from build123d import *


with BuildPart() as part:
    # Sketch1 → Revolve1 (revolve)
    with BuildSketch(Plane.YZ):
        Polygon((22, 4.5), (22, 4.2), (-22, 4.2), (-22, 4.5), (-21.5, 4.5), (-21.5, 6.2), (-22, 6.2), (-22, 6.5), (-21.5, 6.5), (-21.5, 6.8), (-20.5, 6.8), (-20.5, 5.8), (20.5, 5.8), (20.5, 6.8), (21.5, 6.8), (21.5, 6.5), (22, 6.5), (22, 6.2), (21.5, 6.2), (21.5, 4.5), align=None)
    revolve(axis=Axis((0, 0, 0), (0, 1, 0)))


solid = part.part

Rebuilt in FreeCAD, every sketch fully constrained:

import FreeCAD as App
import Part
import Sketcher

V = App.Vector


def add_polygon(sketch, points):
    """Adds a closed chain of lines whose ends are joined by coincident constraints."""
    first, n = sketch.GeometryCount, len(points)
    for a, b in zip(points, points[1:] + points[:1]):
        sketch.addGeometry(Part.LineSegment(App.Vector(*a, 0), App.Vector(*b, 0)), False)
    for i in range(n):
        sketch.addConstraint(Sketcher.Constraint("Coincident", first + i, 2, first + (i + 1) % n, 1))

doc = App.newDocument("Part")
body = doc.addObject("PartDesign::Body", "Body")

sketch1 = doc.addObject("Sketcher::SketchObject", "Sketch")
body.addObject(sketch1)
sketch1.AttachmentSupport = (doc.YZ_Plane, [""])
sketch1.MapMode = "FlatFace"
add_polygon(sketch1, [(22, 4.2), (22, 4.5), (21.5, 4.5), (21.5, 6.2), (22, 6.2), (22, 6.5), (21.5, 6.5), (21.5, 6.8), (20.5, 6.8), (20.5, 5.8), (-20.5, 5.8), (-20.5, 6.8), (-21.5, 6.8), (-21.5, 6.5), (-22, 6.5), (-22, 6.2), (-21.5, 6.2), (-21.5, 4.5), (-22, 4.5), (-22, 4.2)])
sketch1.addConstraint(Sketcher.Constraint("Vertical", 0))
sketch1.addConstraint(Sketcher.Constraint("Horizontal", 1))
sketch1.addConstraint(Sketcher.Constraint("Vertical", 2))
sketch1.addConstraint(Sketcher.Constraint("Horizontal", 3))
sketch1.addConstraint(Sketcher.Constraint("Vertical", 4))
sketch1.addConstraint(Sketcher.Constraint("Horizontal", 5))
sketch1.addConstraint(Sketcher.Constraint("Vertical", 6))
sketch1.addConstraint(Sketcher.Constraint("Horizontal", 7))
sketch1.addConstraint(Sketcher.Constraint("Vertical", 8))
sketch1.addConstraint(Sketcher.Constraint("Horizontal", 9))
sketch1.addConstraint(Sketcher.Constraint("Vertical", 10))
sketch1.addConstraint(Sketcher.Constraint("Horizontal", 11))
sketch1.addConstraint(Sketcher.Constraint("Vertical", 12))
sketch1.addConstraint(Sketcher.Constraint("Horizontal", 13))
sketch1.addConstraint(Sketcher.Constraint("Vertical", 14))
sketch1.addConstraint(Sketcher.Constraint("Horizontal", 15))
sketch1.addConstraint(Sketcher.Constraint("Vertical", 16))
sketch1.addConstraint(Sketcher.Constraint("Horizontal", 17))
sketch1.addConstraint(Sketcher.Constraint("Vertical", 18))
sketch1.addConstraint(Sketcher.Constraint("Horizontal", 19))
sketch1.addConstraint(Sketcher.Constraint("Symmetric", 7, 2, 10, 2, -2))
sketch1.addConstraint(Sketcher.Constraint("Symmetric", 5, 2, 12, 2, -2))
sketch1.addConstraint(Sketcher.Constraint("Symmetric", 3, 2, 14, 2, -2))
sketch1.addConstraint(Sketcher.Constraint("Symmetric", 1, 2, 16, 2, -2))
sketch1.addConstraint(Sketcher.Constraint("Vertical", 0, 2, 3, 2))
sketch1.addConstraint(Sketcher.Constraint("Vertical", 2, 2, 5, 2))
sketch1.addConstraint(Sketcher.Constraint("Vertical", 14, 2, 17, 2))
sketch1.addConstraint(Sketcher.Constraint("Equal", 0, 4))
sketch1.addConstraint(Sketcher.Constraint("Equal", 4, 6))
sketch1.addConstraint(Sketcher.Constraint("Equal", 11, 8))
sketch1.addConstraint(Sketcher.Constraint("DistanceX", 7, 2, 7, 1, 1.0))
sketch1.addConstraint(Sketcher.Constraint("DistanceX", 9, 2, 9, 1, 41.0))
sketch1.addConstraint(Sketcher.Constraint("DistanceX", 19, 1, 19, 2, 44.0))
sketch1.addConstraint(Sketcher.Constraint("DistanceY", 0, 1, 0, 2, 0.3))
sketch1.addConstraint(Sketcher.Constraint("DistanceY", 2, 1, 2, 2, 1.7))
sketch1.addConstraint(Sketcher.Constraint("DistanceY", -1, 1, 0, 2, 4.5))
revolution = doc.addObject("PartDesign::Revolution", "Revolution")
body.addObject(revolution)
revolution.Profile = sketch1
revolution.ReferenceAxis = (sketch1, ["H_Axis"])
revolution.Angle = 360

doc.recompute()
